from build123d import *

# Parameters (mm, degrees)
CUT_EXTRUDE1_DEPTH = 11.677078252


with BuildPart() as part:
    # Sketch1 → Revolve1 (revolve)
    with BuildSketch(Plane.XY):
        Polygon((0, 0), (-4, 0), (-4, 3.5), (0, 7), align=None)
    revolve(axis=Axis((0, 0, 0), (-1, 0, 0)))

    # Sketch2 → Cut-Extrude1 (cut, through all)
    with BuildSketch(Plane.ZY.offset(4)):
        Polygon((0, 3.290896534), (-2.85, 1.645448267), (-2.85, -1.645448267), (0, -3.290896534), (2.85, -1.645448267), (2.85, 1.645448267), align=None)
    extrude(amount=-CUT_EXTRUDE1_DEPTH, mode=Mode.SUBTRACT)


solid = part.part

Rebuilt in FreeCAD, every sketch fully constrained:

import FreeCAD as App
import Part
import Sketcher
from FreeCAD import Vector
Q = App.Units.Quantity

doc = App.newDocument("Part")
body = doc.addObject("PartDesign::Body", "Body")

sketch1 = doc.addObject("Sketcher::SketchObject", "Sketch")
body.addObject(sketch1)
sketch1.AttachmentSupport = (doc.XY_Plane, [""])
sketch1.MapMode = "FlatFace"
sketch1.addGeometry(Part.LineSegment(Vector(-4, 0, 0), Vector(0, 0, 0)), False)
sketch1.addGeometry(Part.LineSegment(Vector(0, 0, 0), Vector(0, 7, 0)), False)
sketch1.addGeometry(Part.LineSegment(Vector(0, 7, 0), Vector(-4, 3.5, 0)), False)
sketch1.addGeometry(Part.LineSegment(Vector(-4, 3.5, 0), Vector(-4, 0, 0)), False)
sketch1.addConstraint(Sketcher.Constraint("Coincident", 0, 2, 1, 1))
sketch1.addConstraint(Sketcher.Constraint("Coincident", 1, 2, 2, 1))
sketch1.addConstraint(Sketcher.Constraint("Coincident", 2, 2, 3, 1))
sketch1.addConstraint(Sketcher.Constraint("Coincident", 3, 2, 0, 1))
sketch1.addConstraint(Sketcher.Constraint("Horizontal", 0))
sketch1.addConstraint(Sketcher.Constraint("Vertical", 1))
sketch1.addConstraint(Sketcher.Constraint("Vertical", 3))
sketch1.addConstraint(Sketcher.Constraint("Coincident", 0, 2, -1, 1))
sketch1.addConstraint(Sketcher.Constraint("DistanceX", 0, 1, 0, 2, 4.0))
sketch1.addConstraint(Sketcher.Constraint("DistanceY", 1, 1, 1, 2, 7.0))
sketch1.addConstraint(Sketcher.Constraint("DistanceY", 3, 2, 3, 1, 3.5))
revolution = doc.addObject("PartDesign::Revolution", "Revolution")
body.addObject(revolution)
revolution.Profile = sketch1
revolution.ReferenceAxis = (sketch1, ["H_Axis"])
revolution.Angle = 360

sketch2 = doc.addObject("Sketcher::SketchObject", "Sketch001")
body.addObject(sketch2)
sketch2.AttachmentSupport = (doc.YZ_Plane, [""])
sketch2.MapMode = "FlatFace"
sketch2.AttachmentOffset = App.Placement(Vector(0, 0, -4), App.Rotation())
sketch2.addGeometry(Part.LineSegment(Vector(3.3, 0, 0), Vector(1.6, -2.9, 0)), False)
sketch2.addGeometry(Part.LineSegment(Vector(1.6, -2.9, 0), Vector(-1.6, -2.9, 0)), False)
sketch2.addGeometry(Part.LineSegment(Vector(-1.6, -2.9, 0), Vector(-3.3, 0, 0)), False)
sketch2.addGeometry(Part.LineSegment(Vector(-3.3, 0, 0), Vector(-1.6, 2.9, 0)), False)
sketch2.addGeometry(Part.LineSegment(Vector(-1.6, 2.9, 0), Vector(1.6, 2.9, 0)), False)
sketch2.addGeometry(Part.LineSegment(Vector(1.6, 2.9, 0), Vector(3.3, 0, 0)), False)
sketch2.addConstraint(Sketcher.Constraint("Coincident", 0, 2, 1, 1))
sketch2.addConstraint(Sketcher.Constraint("Coincident", 1, 2, 2, 1))
sketch2.addConstraint(Sketcher.Constraint("Coincident", 2, 2, 3, 1))
sketch2.addConstraint(Sketcher.Constraint("Coincident", 3, 2, 4, 1))
sketch2.addConstraint(Sketcher.Constraint("Coincident", 4, 2, 5, 1))
sketch2.addConstraint(Sketcher.Constraint("Coincident", 5, 2, 0, 1))
sketch2.addConstraint(Sketcher.Constraint("Horizontal", 1))
sketch2.addConstraint(Sketcher.Constraint("Horizontal", 4))
sketch2.addConstraint(Sketcher.Constraint("Symmetric", 0, 2, 3, 2, -1, 1))
sketch2.addConstraint(Sketcher.Constraint("Symmetric", 2, 2, 5, 2, -1, 1))
sketch2.addConstraint(Sketcher.Constraint("PointOnObject", 2, 2, -1))
sketch2.addConstraint(Sketcher.Constraint("Parallel", 2, 5))
sketch2.addConstraint(Sketcher.Constraint("Vertical", 1, 2, 3, 2))
sketch2.addConstraint(Sketcher.Constraint("Angle", 0, Q("-120 deg")))
sketch2.addConstraint(Sketcher.Constraint("DistanceY", 1, 2, 3, 2, 5.7))
sketch2.addConstraint(Sketcher.Constraint("DistanceX", 1, 2, 1, 1, 3.290897))
pocket1 = doc.addObject("PartDesign::Pocket", "Pocket")
body.addObject(pocket1)
pocket1.Profile = sketch2
pocket1.Type = "ThroughAll"
pocket1.Reversed = True

doc.recompute()
